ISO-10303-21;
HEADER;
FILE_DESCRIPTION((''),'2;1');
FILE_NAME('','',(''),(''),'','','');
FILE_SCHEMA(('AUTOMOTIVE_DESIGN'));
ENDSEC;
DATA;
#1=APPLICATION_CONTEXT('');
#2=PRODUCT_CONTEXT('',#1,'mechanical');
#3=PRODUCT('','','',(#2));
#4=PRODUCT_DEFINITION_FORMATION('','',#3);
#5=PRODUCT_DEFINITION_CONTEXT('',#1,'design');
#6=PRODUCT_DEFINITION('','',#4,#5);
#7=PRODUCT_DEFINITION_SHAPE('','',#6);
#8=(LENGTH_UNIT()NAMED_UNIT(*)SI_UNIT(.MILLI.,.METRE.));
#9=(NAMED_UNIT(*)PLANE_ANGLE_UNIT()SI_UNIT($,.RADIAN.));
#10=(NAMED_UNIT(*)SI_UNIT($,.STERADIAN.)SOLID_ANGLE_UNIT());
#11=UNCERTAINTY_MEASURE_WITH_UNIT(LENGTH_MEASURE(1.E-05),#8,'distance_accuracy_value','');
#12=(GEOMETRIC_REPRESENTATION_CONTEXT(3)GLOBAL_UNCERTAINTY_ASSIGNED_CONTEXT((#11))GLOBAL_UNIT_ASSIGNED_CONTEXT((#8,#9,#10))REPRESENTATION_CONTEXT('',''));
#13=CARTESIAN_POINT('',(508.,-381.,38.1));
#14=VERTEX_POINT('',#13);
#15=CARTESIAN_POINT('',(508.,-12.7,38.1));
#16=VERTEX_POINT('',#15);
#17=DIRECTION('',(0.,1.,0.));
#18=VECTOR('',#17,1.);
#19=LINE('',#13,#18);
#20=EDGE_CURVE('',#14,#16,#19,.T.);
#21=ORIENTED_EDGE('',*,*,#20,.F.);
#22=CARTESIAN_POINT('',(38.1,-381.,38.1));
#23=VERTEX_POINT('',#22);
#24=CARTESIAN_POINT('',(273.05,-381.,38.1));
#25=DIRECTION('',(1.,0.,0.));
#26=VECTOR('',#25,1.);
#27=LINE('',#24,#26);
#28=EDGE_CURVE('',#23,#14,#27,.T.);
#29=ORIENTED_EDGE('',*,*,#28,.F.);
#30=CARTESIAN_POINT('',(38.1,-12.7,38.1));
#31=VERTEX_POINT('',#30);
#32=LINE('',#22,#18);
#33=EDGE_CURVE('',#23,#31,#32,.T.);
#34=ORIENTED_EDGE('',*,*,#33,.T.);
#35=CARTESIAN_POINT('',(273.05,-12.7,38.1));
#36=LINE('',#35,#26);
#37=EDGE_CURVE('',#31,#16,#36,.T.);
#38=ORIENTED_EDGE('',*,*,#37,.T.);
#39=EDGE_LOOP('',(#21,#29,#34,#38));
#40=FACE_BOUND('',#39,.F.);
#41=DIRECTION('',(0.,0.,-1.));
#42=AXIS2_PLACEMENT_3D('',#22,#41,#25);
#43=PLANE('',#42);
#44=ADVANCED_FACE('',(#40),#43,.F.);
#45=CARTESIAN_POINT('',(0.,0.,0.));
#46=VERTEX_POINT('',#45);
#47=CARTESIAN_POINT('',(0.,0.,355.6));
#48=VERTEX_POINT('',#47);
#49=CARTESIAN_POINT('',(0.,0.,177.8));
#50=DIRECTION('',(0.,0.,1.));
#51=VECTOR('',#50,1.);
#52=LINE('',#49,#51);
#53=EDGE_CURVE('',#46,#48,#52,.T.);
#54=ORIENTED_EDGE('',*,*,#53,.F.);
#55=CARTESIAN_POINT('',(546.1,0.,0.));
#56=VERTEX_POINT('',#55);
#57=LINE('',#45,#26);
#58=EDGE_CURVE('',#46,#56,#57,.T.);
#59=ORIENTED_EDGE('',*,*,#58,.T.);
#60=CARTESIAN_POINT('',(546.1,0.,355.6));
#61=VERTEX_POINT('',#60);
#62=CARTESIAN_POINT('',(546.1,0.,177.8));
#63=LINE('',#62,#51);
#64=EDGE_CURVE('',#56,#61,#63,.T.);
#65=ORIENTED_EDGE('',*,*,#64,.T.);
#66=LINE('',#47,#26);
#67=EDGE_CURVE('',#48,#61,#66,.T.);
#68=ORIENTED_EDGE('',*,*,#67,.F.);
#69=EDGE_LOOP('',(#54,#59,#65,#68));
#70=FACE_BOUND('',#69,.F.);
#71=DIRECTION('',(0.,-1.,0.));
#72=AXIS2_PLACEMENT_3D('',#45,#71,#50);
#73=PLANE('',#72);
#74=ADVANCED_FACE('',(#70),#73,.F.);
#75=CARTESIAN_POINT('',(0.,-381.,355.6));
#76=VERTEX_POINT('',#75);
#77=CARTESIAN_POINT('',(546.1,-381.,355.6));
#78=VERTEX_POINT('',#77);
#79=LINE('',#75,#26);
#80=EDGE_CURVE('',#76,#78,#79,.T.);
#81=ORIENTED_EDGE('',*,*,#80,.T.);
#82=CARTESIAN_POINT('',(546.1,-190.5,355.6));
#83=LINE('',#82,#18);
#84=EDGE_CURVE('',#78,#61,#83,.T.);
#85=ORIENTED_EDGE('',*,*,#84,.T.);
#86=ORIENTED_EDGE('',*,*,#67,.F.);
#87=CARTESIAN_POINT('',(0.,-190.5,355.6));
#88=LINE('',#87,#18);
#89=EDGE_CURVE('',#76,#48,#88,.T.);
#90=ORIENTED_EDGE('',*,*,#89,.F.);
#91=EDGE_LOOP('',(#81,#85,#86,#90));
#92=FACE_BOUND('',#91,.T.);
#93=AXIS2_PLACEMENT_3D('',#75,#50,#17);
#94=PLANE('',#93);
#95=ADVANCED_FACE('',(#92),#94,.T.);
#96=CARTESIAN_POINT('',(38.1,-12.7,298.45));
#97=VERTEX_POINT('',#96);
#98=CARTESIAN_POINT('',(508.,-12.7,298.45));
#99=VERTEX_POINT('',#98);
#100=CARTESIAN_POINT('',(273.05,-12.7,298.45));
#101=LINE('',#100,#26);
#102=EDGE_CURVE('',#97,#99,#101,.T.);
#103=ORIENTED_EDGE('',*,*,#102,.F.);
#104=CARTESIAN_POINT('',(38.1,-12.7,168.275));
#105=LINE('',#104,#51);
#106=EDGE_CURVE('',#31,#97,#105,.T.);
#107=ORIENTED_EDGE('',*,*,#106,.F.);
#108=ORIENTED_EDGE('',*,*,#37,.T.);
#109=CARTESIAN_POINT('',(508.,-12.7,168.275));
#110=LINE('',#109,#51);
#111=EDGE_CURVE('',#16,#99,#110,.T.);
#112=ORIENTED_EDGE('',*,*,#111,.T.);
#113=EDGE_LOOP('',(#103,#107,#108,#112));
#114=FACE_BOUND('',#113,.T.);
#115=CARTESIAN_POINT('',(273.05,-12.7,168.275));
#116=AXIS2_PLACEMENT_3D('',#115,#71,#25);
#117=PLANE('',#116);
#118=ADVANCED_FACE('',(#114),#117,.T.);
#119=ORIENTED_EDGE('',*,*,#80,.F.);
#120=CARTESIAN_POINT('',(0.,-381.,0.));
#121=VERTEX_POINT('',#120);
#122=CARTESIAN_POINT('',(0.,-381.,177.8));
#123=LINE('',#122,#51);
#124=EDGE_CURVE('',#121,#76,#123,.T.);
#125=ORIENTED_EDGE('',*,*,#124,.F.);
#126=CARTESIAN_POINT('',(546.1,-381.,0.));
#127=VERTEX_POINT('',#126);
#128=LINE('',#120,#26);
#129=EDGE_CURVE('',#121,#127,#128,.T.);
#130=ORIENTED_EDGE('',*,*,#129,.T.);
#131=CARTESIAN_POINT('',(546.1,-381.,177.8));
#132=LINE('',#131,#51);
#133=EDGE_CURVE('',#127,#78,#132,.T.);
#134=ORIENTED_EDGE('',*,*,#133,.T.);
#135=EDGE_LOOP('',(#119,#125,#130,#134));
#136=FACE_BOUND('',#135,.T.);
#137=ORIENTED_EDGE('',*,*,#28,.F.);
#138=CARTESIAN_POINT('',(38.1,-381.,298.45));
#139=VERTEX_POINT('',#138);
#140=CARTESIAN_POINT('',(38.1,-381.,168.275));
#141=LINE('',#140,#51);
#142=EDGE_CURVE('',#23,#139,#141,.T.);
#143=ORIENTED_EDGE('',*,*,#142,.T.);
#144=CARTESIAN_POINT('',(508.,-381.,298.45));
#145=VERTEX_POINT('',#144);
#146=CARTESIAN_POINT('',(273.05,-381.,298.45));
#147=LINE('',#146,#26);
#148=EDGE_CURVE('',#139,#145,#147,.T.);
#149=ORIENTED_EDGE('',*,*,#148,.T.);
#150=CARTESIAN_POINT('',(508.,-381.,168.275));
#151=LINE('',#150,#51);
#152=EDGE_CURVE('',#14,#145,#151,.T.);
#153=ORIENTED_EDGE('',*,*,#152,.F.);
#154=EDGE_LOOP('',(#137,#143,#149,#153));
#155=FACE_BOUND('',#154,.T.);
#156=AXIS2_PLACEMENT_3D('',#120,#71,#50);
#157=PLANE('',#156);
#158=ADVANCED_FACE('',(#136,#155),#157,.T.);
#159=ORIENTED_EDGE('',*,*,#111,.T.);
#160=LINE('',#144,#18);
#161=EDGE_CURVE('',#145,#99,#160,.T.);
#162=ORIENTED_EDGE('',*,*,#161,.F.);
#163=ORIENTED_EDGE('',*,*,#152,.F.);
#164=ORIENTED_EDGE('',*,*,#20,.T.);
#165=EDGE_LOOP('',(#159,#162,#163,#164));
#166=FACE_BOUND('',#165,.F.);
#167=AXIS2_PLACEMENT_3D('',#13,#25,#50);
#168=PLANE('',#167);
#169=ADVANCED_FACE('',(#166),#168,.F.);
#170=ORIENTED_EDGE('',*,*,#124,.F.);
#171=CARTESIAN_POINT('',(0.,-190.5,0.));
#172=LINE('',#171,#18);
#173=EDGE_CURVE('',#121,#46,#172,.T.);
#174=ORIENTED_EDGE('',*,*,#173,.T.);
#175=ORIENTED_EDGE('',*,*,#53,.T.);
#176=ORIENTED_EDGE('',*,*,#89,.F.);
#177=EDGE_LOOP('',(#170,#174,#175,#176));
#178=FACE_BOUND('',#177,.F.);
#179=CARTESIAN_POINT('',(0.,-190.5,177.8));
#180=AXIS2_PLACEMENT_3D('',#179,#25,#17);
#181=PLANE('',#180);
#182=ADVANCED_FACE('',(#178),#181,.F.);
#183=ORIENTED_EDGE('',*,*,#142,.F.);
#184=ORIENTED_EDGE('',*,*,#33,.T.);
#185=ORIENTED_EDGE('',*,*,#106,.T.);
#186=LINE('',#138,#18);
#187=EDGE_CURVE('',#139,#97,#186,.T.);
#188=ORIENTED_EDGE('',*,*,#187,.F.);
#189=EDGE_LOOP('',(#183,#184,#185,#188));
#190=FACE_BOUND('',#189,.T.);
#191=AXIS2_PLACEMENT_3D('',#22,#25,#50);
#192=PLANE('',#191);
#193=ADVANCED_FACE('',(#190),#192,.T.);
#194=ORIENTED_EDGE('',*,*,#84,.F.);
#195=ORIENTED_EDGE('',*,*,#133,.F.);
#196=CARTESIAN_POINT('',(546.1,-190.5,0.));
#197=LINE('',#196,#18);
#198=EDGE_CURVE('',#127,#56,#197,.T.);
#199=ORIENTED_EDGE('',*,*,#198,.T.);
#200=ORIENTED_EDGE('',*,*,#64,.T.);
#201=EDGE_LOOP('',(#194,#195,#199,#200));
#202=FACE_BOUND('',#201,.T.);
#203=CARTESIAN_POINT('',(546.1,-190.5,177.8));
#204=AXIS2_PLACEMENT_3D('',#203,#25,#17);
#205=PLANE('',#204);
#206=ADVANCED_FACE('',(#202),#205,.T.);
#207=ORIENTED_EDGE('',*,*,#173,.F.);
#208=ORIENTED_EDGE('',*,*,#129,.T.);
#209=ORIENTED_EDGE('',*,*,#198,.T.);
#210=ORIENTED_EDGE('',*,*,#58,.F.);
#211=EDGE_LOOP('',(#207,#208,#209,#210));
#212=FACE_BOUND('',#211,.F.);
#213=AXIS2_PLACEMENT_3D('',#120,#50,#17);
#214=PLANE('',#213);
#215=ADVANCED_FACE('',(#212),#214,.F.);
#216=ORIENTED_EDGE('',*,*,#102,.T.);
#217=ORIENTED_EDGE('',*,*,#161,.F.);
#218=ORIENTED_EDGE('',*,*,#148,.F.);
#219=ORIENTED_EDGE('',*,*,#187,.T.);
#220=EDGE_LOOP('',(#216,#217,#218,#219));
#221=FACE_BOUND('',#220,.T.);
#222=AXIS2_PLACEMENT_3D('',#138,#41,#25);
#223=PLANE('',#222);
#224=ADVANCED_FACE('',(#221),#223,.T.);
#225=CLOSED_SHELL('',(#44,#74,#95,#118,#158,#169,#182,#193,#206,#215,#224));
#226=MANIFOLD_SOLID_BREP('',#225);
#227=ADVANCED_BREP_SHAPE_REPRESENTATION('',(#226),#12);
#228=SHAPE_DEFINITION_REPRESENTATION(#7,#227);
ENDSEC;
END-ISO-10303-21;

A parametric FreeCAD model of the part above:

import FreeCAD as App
import Part
import Sketcher
Q = App.Units.Quantity

doc = App.newDocument("Part")
body = doc.addObject("PartDesign::Body", "Body")

# Sketch on YZ plane
sketch1 = body.newObject("Sketcher::SketchObject", "Sketch")
sketch1.AttachmentSupport = (doc.getObject("YZ_Plane"), [""])
sketch1.MapMode = "FlatFace"
sketch1.addGeometry([
    Part.LineSegment(App.Vector(-381, 356, 0), App.Vector(-381, 0, 0)),
    Part.LineSegment(App.Vector(-381, 0, 0), App.Vector(0, 0, 0)),
    Part.LineSegment(App.Vector(0, 0, 0), App.Vector(0, 356, 0)),
    Part.LineSegment(App.Vector(0, 356, 0), App.Vector(-381, 356, 0)),
], False)
sketch1.addConstraint([
    Sketcher.Constraint("Coincident", 0, 2, 1, 1),
    Sketcher.Constraint("Coincident", 1, 2, 2, 1),
    Sketcher.Constraint("Coincident", 2, 2, 3, 1),
    Sketcher.Constraint("Coincident", 3, 2, 0, 1),
    Sketcher.Constraint("Vertical", 0),
    Sketcher.Constraint("Horizontal", 1),
    Sketcher.Constraint("Vertical", 2),
    Sketcher.Constraint("Horizontal", 3),
    Sketcher.Constraint("Coincident", 1, 2, -1, 1),
    Sketcher.Constraint("DistanceX", 1, 1, 1, 2, Q("15 in")),
    Sketcher.Constraint("DistanceY", 0, 2, 0, 1, Q("14 in")),
])
pad1 = body.newObject("PartDesign::Pad", "Pad")
pad1.Profile = sketch1
pad1.Length = Q("21.5 in")

# Sketch on XZ plane
sketch2 = body.newObject("Sketcher::SketchObject", "Sketch001")
sketch2.AttachmentSupport = (doc.getObject("XZ_Plane"), [""])
sketch2.MapMode = "FlatFace"
sketch2.AttachmentOffset = App.Placement(App.Vector(0, 0, 15 * 25.4), App.Rotation())
sketch2.addGeometry([
    Part.LineSegment(App.Vector(38, 298, 0), App.Vector(38, 38, 0)),
    Part.LineSegment(App.Vector(38, 38, 0), App.Vector(508, 38, 0)),
    Part.LineSegment(App.Vector(508, 38, 0), App.Vector(508, 298, 0)),
    Part.LineSegment(App.Vector(508, 298, 0), App.Vector(38, 298, 0)),
], False)
sketch2.addConstraint([
    Sketcher.Constraint("Coincident", 0, 2, 1, 1),
    Sketcher.Constraint("Coincident", 1, 2, 2, 1),
    Sketcher.Constraint("Coincident", 2, 2, 3, 1),
    Sketcher.Constraint("Coincident", 3, 2, 0, 1),
    Sketcher.Constraint("Vertical", 0),
    Sketcher.Constraint("Horizontal", 1),
    Sketcher.Constraint("Vertical", 2),
    Sketcher.Constraint("Horizontal", 3),
    Sketcher.Constraint("DistanceX", 1, 1, 1, 2, Q("18.5 in")),
    Sketcher.Constraint("DistanceX", -1, 1, 1, 2, Q("20 in")),
    Sketcher.Constraint("DistanceY", 0, 2, 0, 1, Q("10.25 in")),
    Sketcher.Constraint("DistanceY", -1, 1, 0, 2, Q("1.5 in")),
])
pocket1 = body.newObject("PartDesign::Pocket", "Pocket")
pocket1.Profile = sketch2
pocket1.Length = Q("14.5 in")

doc.recompute()
